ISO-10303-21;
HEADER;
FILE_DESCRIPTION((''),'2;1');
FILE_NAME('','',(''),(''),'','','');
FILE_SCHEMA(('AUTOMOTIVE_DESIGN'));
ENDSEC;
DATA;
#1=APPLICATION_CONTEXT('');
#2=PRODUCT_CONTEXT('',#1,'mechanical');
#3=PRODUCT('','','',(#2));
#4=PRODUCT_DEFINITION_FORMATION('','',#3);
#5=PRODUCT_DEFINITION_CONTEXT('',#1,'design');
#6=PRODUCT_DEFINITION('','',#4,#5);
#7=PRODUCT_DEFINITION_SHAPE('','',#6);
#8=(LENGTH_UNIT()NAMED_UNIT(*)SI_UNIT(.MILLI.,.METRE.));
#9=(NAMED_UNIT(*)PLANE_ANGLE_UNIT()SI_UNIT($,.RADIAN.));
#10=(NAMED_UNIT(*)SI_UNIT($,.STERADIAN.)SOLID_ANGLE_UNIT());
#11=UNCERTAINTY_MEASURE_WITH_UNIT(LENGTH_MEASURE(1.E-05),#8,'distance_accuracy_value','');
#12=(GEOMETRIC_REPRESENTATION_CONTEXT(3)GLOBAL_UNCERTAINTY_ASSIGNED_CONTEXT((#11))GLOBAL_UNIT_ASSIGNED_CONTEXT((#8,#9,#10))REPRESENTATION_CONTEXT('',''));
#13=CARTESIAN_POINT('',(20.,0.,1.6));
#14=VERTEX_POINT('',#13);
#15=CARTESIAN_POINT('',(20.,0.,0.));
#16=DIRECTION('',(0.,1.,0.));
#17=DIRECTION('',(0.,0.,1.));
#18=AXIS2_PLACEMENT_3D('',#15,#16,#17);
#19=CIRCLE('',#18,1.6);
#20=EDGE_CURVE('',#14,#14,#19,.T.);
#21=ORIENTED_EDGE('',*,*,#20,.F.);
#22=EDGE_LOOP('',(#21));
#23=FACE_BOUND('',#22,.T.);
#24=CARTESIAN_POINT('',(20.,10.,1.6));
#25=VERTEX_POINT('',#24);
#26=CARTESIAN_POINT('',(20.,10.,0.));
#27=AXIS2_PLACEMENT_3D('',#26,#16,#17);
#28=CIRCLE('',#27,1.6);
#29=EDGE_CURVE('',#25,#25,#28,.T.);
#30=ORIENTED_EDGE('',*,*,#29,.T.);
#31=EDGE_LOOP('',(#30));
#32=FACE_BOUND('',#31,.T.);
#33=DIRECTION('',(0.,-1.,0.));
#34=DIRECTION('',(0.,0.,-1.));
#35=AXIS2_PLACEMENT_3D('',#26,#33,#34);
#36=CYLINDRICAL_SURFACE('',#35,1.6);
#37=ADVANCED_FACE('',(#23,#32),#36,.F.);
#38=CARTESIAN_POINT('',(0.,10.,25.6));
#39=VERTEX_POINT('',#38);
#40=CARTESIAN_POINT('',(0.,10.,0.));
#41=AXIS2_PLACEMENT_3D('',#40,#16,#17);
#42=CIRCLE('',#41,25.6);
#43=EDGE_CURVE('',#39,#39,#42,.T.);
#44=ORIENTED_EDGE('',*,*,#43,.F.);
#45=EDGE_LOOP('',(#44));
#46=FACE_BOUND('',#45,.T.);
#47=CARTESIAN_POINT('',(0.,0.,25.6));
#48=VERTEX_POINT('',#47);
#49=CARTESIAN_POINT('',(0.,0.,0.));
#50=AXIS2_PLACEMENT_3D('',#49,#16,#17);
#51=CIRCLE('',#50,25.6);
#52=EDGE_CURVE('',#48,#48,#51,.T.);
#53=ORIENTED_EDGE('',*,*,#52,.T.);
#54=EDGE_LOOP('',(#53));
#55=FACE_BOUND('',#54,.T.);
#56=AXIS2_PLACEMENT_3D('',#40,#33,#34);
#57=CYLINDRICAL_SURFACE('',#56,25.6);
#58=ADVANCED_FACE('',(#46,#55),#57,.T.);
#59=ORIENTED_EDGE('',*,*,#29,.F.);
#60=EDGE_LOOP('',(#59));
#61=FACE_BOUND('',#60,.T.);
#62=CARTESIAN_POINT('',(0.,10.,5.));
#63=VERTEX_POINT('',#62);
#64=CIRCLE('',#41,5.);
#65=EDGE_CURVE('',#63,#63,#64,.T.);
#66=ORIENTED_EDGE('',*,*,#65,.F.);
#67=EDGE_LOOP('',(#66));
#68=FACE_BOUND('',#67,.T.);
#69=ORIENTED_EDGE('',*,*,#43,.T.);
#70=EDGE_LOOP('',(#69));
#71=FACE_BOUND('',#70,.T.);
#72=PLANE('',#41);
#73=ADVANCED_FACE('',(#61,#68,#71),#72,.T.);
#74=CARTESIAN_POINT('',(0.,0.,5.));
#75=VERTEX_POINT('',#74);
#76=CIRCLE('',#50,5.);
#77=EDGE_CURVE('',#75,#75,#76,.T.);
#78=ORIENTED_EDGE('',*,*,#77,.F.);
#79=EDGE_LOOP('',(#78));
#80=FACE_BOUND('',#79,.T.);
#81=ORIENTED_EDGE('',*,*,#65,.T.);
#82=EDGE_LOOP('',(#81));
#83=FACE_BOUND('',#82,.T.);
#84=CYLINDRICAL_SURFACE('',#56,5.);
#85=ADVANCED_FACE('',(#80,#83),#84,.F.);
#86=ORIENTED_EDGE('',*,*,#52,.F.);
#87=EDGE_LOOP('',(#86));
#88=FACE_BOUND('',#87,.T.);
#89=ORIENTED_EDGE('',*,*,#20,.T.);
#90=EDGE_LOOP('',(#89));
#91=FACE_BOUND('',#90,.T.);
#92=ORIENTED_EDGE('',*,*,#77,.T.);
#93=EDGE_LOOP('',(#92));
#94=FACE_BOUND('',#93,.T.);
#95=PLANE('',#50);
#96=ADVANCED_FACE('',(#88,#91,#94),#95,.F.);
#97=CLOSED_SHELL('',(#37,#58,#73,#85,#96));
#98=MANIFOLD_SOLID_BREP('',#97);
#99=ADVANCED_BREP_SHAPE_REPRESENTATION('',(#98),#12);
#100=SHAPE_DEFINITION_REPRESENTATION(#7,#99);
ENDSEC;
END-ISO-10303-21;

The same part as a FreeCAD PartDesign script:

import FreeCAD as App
import Part
import Sketcher
from FreeCAD import Vector

doc = App.newDocument("Part")
params = doc.addObject("Spreadsheet::Sheet", "Params")
for row, (alias, value) in enumerate([
    ("sketch1_diameter", "10 mm"),
    ("sketch1_diameter2", "51.2 mm"),
    ("sketch1_diameter3", "3.2 mm"),
    ("pad1_length", "10 mm"),
], start=1):
    params.set(f"A{row}", alias)
    params.set(f"B{row}", "=" + value)
    params.setAlias(f"B{row}", alias)

body = doc.addObject("PartDesign::Body", "Body")

# Sketch on XZ plane
sketch1 = body.newObject("Sketcher::SketchObject", "Sketch")
sketch1.AttachmentSupport = (doc.getObject("XZ_Plane"), [""])
sketch1.MapMode = "FlatFace"
sketch1.addGeometry([
    Part.Circle(Vector(0, 0, 0), Vector(0, 0, 1), 25.6),
    Part.Circle(Vector(0, 0, 0), Vector(0, 0, 1), 5),
    Part.Circle(Vector(20, 0, 0), Vector(0, 0, 1), 1.6),
], False)
sketch1.addConstraint([
    Sketcher.Constraint("Coincident", 0, 3, -1, 1),
    Sketcher.Constraint("Coincident", 1, 3, -1, 1),
    Sketcher.Constraint("PointOnObject", 2, 3, -1),
    Sketcher.Constraint("Diameter", 1, 10.0),
    Sketcher.Constraint("Diameter", 0, 51.2),
    Sketcher.Constraint("Diameter", 2, 3.2),
    Sketcher.Constraint("DistanceX", -1, 1, 2, 3, 20.0),
])
sketch1.setExpression("Constraints[3]", "Params.sketch1_diameter")
sketch1.setExpression("Constraints[4]", "Params.sketch1_diameter2")
sketch1.setExpression("Constraints[5]", "Params.sketch1_diameter3")
pad1 = body.newObject("PartDesign::Pad", "Pad")
pad1.Profile = sketch1
pad1.setExpression("Length", "Params.pad1_length")
pad1.Reversed = True

doc.recompute()
